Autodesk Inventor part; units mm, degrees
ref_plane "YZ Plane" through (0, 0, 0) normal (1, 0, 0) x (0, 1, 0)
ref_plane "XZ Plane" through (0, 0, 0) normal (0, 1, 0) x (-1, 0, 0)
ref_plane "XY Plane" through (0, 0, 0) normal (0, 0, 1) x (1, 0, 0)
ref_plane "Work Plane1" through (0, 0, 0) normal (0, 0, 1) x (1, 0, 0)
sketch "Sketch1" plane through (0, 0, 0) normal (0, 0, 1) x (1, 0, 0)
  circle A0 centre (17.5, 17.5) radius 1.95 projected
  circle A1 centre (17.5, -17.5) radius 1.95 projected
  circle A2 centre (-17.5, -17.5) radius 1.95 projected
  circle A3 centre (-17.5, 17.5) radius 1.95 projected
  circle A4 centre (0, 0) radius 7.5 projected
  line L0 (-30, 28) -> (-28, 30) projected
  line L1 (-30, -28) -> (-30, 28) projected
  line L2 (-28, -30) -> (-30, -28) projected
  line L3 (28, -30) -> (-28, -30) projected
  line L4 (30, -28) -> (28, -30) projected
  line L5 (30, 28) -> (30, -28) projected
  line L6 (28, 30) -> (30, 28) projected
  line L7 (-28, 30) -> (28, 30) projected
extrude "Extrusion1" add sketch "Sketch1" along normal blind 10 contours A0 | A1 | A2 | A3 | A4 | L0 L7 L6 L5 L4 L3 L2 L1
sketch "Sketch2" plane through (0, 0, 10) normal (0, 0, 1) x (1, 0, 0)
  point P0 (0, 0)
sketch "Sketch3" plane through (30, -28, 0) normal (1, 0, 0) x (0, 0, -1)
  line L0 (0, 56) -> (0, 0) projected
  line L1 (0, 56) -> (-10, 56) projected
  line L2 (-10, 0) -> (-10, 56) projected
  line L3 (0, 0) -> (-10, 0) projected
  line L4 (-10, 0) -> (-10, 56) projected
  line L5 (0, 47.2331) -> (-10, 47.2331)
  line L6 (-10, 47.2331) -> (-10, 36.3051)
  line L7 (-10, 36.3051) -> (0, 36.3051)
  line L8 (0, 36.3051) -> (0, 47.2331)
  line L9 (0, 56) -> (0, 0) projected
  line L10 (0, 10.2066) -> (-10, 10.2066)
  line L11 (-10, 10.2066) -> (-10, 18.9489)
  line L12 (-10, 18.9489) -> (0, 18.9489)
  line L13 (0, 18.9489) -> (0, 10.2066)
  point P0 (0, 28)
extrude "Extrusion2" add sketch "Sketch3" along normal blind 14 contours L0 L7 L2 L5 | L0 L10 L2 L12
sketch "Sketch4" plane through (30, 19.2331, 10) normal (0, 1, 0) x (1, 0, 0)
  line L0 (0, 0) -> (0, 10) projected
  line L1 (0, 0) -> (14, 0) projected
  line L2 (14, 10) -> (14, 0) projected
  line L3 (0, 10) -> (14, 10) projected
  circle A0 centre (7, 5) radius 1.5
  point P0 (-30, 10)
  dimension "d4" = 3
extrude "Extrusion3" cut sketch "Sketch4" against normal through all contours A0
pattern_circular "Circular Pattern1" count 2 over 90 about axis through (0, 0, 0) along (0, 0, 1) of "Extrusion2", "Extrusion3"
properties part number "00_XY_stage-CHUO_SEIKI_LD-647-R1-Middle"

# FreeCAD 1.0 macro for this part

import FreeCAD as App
import Part
import Sketcher

V = App.Vector

doc = App.newDocument("Part")
body = doc.addObject("PartDesign::Body", "Body")

# Sketch on XY plane
sketch1 = body.newObject("Sketcher::SketchObject", "Sketch")
sketch1.AttachmentSupport = (doc.getObject("XY_Plane"), [""])
sketch1.MapMode = "FlatFace"
sketch1.addGeometry([
    Part.LineSegment(V(-28, 30, 0), V(-30, 28, 0)),  # 0
    Part.LineSegment(V(-30, 28, 0), V(-30, -28, 0)),  # 1
    Part.LineSegment(V(-30, -28, 0), V(-28, -30, 0)),  # 2
    Part.LineSegment(V(-28, -30, 0), V(28, -30, 0)),  # 3
    Part.LineSegment(V(28, -30, 0), V(30, -28, 0)),  # 4
    Part.LineSegment(V(30, -28, 0), V(30, 28, 0)),  # 5
    Part.LineSegment(V(30, 28, 0), V(28, 30, 0)),  # 6
    Part.LineSegment(V(28, 30, 0), V(-28, 30, 0)),  # 7
], False)
sketch1.addConstraint([
    Sketcher.Constraint("Coincident", 0, 2, 1, 1),
    Sketcher.Constraint("Coincident", 1, 2, 2, 1),
    Sketcher.Constraint("Coincident", 2, 2, 3, 1),
    Sketcher.Constraint("Coincident", 3, 2, 4, 1),
    Sketcher.Constraint("Coincident", 4, 2, 5, 1),
    Sketcher.Constraint("Coincident", 5, 2, 6, 1),
    Sketcher.Constraint("Coincident", 6, 2, 7, 1),
    Sketcher.Constraint("Coincident", 7, 2, 0, 1),
    Sketcher.Constraint("Vertical", 1),
    Sketcher.Constraint("Horizontal", 3),
    Sketcher.Constraint("Vertical", 5),
    Sketcher.Constraint("Horizontal", 7),
    Sketcher.Constraint("Symmetric", 0, 2, 4, 2, -1, 1),
    Sketcher.Constraint("Symmetric", 2, 2, 6, 2, -1, 1),
    Sketcher.Constraint("Perpendicular", 0, 2),
    Sketcher.Constraint("Perpendicular", 2, 4),
    Sketcher.Constraint("Perpendicular", 4, 6),
    Sketcher.Constraint("Horizontal", 1, 2, 4, 2),
    Sketcher.Constraint("Vertical", 3, 2, 6, 2),
    Sketcher.Constraint("Equal", 7, 1),
    Sketcher.Constraint("DistanceX", 3, 1, 3, 2, 56.0),
    Sketcher.Constraint("DistanceX", 0, 2, -1, 1, 30.0),
])
pad1 = body.newObject("PartDesign::Pad", "Pad")
pad1.Profile = sketch1
pad1.Length = 10

# Sketch on YZ plane
sketch2 = body.newObject("Sketcher::SketchObject", "Sketch001")
sketch2.AttachmentSupport = (doc.getObject("YZ_Plane"), [""])
sketch2.MapMode = "FlatFace"
sketch2.AttachmentOffset = App.Placement(V(0, 0, 30), App.Rotation())
sketch2.addGeometry([
    Part.LineSegment(V(8, 0, 0), V(19, 0, 0)),  # 0
    Part.LineSegment(V(19, 0, 0), V(19, 10, 0)),  # 1
    Part.LineSegment(V(19, 10, 0), V(8, 10, 0)),  # 2
    Part.LineSegment(V(8, 10, 0), V(8, 0, 0)),  # 3
    Part.LineSegment(V(-18, 0, 0), V(-9, 0, 0)),  # 4
    Part.LineSegment(V(-9, 0, 0), V(-9, 10, 0)),  # 5
    Part.LineSegment(V(-9, 10, 0), V(-18, 10, 0)),  # 6
    Part.LineSegment(V(-18, 10, 0), V(-18, 0, 0)),  # 7
], False)
sketch2.addConstraint([
    Sketcher.Constraint("Coincident", 0, 2, 1, 1),
    Sketcher.Constraint("Coincident", 1, 2, 2, 1),
    Sketcher.Constraint("Coincident", 2, 2, 3, 1),
    Sketcher.Constraint("Coincident", 3, 2, 0, 1),
    Sketcher.Constraint("Coincident", 4, 2, 5, 1),
    Sketcher.Constraint("Coincident", 5, 2, 6, 1),
    Sketcher.Constraint("Coincident", 6, 2, 7, 1),
    Sketcher.Constraint("Coincident", 7, 2, 4, 1),
    Sketcher.Constraint("Horizontal", 0),
    Sketcher.Constraint("Vertical", 1),
    Sketcher.Constraint("Horizontal", 2),
    Sketcher.Constraint("Vertical", 3),
    Sketcher.Constraint("Horizontal", 4),
    Sketcher.Constraint("Vertical", 5),
    Sketcher.Constraint("Horizontal", 6),
    Sketcher.Constraint("Vertical", 7),
    Sketcher.Constraint("PointOnObject", 0, 2, -1),
    Sketcher.Constraint("PointOnObject", 4, 2, -1),
    Sketcher.Constraint("Horizontal", 2, 2, 5, 2),
    Sketcher.Constraint("DistanceY", 1, 1, 1, 2, 10.0),
    Sketcher.Constraint("DistanceX", 0, 1, 0, 2, 10.928),
    Sketcher.Constraint("DistanceX", 4, 1, 4, 2, 8.7423),
    Sketcher.Constraint("DistanceX", -1, 1, 0, 2, 19.233),
    Sketcher.Constraint("DistanceX", 4, 2, -1, 1, 9.051),
])
pad2 = body.newObject("PartDesign::Pad", "Pad001")
pad2.Profile = sketch2
pad2.Length = 14

# Sketch on XZ plane
sketch3 = body.newObject("Sketcher::SketchObject", "Sketch002")
sketch3.AttachmentSupport = (doc.getObject("XZ_Plane"), [""])
sketch3.MapMode = "FlatFace"
sketch3.AttachmentOffset = App.Placement(V(0, 0, -19.2331), App.Rotation())
sketch3.addGeometry(Part.Circle(V(37, 5, 0), V(0, 0, 1), 1.5), False)
sketch3.addConstraint([
    Sketcher.Constraint("Diameter", 0, 3.0),
    Sketcher.Constraint("DistanceX", -1, 1, 0, 3, 37.0),
    Sketcher.Constraint("DistanceY", -1, 1, 0, 3, 5.0),
])
pocket1 = body.newObject("PartDesign::Pocket", "Pocket")
pocket1.Profile = sketch3
pocket1.Type = "ThroughAll"
pocket1.Reversed = True
doc.recompute()

polarpattern = body.newObject("PartDesign::PolarPattern", "PolarPattern")
polarpattern.Originals = [pad2, pocket1]
polarpattern.Axis = (doc.getObject("Z_Axis"), [""])
polarpattern.Angle = 90
polarpattern.Occurrences = 2
body.Tip = polarpattern

doc.recompute()
